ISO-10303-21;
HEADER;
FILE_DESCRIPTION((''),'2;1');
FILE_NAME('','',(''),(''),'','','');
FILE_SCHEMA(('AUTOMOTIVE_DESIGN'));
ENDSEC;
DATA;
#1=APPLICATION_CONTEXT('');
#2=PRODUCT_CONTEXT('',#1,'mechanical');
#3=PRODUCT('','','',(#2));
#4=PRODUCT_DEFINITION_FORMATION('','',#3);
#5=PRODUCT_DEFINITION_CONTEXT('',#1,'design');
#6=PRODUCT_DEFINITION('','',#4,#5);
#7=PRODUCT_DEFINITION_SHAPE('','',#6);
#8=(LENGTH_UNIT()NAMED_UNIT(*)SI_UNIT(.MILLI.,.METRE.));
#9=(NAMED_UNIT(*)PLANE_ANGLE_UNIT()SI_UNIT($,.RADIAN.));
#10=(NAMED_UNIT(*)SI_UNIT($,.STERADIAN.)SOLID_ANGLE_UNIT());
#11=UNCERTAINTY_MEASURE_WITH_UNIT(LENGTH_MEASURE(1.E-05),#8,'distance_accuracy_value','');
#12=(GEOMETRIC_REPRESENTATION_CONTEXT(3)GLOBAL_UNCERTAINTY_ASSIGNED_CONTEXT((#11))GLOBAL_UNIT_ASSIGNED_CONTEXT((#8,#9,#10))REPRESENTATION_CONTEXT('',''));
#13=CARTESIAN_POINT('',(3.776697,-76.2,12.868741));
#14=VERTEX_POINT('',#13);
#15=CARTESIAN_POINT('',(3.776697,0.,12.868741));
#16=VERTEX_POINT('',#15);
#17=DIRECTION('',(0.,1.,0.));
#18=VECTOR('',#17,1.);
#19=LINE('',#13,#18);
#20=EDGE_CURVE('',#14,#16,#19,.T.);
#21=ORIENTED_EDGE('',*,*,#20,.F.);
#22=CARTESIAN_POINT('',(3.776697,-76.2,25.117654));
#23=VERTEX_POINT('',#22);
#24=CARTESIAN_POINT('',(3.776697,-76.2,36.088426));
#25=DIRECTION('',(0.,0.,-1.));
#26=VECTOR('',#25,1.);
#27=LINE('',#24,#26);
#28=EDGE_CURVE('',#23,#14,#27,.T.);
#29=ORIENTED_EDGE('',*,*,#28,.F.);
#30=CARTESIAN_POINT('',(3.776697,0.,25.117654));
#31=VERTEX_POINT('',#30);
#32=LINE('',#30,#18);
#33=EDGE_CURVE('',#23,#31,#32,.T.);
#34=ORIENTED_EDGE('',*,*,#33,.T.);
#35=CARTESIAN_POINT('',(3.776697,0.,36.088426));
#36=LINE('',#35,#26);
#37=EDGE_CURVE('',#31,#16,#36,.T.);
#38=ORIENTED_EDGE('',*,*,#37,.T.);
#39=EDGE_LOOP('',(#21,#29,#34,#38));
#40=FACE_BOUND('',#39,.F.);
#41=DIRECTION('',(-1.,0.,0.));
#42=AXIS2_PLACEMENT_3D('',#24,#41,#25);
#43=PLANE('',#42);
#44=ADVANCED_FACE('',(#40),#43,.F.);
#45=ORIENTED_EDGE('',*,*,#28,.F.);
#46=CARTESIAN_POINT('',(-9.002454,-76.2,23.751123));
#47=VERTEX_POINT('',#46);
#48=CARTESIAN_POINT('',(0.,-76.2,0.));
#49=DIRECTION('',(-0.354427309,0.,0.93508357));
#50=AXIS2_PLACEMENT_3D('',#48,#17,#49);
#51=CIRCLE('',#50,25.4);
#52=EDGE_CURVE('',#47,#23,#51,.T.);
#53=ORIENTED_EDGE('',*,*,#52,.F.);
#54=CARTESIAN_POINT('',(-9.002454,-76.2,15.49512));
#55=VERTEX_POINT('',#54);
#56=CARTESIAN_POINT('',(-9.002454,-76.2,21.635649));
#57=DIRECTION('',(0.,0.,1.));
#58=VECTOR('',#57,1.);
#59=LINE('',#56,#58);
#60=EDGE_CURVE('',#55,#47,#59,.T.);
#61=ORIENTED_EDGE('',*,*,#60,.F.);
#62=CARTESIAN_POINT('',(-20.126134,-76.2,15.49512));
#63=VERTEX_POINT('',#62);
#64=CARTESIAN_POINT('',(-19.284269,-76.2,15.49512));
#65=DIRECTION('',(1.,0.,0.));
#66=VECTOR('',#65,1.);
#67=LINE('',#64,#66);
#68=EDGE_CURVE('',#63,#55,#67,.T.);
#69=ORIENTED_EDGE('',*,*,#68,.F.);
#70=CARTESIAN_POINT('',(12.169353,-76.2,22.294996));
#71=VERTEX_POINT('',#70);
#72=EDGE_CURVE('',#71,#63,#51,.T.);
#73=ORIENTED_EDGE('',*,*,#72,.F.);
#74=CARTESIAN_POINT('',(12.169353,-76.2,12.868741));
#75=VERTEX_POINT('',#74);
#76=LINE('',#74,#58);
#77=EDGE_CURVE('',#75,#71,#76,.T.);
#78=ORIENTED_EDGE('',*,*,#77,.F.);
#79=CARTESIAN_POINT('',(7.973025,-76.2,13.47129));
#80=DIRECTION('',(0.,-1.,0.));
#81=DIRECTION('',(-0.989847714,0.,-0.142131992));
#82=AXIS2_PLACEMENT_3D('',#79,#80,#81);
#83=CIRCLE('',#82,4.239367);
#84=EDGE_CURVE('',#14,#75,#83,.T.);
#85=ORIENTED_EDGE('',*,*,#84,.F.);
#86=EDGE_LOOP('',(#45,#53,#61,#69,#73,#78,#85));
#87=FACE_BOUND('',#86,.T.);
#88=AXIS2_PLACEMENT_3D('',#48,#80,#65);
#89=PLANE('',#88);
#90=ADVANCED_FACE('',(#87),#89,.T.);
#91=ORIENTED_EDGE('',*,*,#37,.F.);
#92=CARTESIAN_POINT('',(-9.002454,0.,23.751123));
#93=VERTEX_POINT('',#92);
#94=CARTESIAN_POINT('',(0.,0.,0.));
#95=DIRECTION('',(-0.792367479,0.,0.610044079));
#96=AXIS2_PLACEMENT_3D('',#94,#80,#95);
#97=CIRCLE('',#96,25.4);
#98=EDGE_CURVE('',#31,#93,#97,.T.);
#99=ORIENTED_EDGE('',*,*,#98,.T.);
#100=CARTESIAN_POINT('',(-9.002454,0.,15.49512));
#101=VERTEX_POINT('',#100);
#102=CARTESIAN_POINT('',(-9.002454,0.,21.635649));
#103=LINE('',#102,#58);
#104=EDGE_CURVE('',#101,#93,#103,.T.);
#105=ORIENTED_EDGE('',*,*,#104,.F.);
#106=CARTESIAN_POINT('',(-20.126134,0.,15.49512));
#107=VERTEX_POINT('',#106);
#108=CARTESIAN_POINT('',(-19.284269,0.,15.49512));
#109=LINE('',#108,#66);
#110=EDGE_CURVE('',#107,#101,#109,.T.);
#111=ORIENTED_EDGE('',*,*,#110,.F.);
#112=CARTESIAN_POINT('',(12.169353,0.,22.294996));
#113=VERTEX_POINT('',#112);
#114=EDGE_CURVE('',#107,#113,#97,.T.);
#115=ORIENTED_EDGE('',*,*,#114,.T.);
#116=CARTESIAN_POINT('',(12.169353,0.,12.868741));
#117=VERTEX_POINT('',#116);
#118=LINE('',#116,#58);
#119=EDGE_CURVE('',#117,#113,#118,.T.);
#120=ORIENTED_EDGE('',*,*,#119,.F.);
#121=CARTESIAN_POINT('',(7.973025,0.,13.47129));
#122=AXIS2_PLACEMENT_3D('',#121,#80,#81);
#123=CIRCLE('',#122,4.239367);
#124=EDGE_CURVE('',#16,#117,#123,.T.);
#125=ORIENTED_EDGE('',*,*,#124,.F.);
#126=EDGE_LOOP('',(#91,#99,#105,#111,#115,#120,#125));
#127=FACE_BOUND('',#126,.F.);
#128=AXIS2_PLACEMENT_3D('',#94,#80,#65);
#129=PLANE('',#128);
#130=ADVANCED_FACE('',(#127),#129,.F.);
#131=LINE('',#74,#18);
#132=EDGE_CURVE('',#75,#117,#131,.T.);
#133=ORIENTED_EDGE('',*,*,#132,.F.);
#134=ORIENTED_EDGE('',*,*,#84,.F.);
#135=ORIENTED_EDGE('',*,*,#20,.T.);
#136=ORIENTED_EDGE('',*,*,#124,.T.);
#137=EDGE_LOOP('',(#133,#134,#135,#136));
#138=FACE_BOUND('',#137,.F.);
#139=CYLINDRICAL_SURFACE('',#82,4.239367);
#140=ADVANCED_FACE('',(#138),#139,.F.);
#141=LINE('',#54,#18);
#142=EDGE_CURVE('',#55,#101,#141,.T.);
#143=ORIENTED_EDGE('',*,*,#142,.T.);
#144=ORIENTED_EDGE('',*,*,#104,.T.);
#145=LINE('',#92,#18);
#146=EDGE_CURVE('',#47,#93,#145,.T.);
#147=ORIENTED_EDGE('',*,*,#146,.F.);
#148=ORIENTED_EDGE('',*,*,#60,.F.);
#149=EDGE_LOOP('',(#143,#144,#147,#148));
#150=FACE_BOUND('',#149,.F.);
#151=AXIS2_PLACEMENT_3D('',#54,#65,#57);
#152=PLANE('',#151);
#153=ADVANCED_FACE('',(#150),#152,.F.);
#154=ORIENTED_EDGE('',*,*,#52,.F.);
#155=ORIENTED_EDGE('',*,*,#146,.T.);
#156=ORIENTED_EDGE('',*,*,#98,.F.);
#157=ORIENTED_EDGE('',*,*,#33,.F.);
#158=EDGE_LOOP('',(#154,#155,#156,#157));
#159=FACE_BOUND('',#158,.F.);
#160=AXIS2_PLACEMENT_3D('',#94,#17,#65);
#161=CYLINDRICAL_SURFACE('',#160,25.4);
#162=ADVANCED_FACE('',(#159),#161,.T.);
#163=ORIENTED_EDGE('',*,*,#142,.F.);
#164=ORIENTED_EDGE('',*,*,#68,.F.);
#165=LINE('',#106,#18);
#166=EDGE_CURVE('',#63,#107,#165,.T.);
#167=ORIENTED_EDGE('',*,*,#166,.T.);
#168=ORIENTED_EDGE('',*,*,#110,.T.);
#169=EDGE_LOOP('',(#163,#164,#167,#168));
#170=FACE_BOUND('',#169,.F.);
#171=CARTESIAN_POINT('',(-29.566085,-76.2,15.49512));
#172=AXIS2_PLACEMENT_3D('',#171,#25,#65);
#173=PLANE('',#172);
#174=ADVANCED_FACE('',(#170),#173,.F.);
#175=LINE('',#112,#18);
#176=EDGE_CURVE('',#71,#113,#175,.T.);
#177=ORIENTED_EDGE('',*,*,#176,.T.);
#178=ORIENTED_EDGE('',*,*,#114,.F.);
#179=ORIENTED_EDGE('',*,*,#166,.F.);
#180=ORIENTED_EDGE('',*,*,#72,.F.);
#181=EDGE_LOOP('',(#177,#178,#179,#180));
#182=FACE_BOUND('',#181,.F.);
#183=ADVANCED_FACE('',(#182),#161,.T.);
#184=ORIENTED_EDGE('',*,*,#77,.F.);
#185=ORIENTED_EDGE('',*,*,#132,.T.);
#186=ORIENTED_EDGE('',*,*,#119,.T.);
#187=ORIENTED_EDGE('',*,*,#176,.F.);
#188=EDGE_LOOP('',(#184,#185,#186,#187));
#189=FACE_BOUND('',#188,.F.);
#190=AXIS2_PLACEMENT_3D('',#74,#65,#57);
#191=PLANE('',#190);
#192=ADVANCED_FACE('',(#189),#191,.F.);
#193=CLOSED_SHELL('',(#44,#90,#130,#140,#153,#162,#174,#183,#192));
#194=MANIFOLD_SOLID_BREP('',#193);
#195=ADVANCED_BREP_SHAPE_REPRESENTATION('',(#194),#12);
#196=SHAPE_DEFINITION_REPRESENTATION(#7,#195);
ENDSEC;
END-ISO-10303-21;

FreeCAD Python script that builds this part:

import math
import FreeCAD as App
import Part
import Sketcher
Q = App.Units.Quantity


def add_polygon(sketch, points):
    """Adds a closed chain of lines whose ends are joined by coincident constraints."""
    first, n = sketch.GeometryCount, len(points)
    for a, b in zip(points, points[1:] + points[:1]):
        sketch.addGeometry(Part.LineSegment(App.Vector(*a, 0), App.Vector(*b, 0)), False)
    for i in range(n):
        sketch.addConstraint(Sketcher.Constraint("Coincident", first + i, 2, first + (i + 1) % n, 1))

doc = App.newDocument("Part")
params = doc.addObject("Spreadsheet::Sheet", "Params")
for row, (alias, value) in enumerate([
    ("sketch1_diameter", "2 in"),
    ("pad1_length", "3 in"),
    ("pocket1_length", "3 in"),
    ("pocket2_length", "3 in"),
], start=1):
    params.set(f"A{row}", alias)
    params.set(f"B{row}", "=" + value)
    params.setAlias(f"B{row}", alias)

body = doc.addObject("PartDesign::Body", "Body")

# Sketch on XZ plane
sketch1 = body.newObject("Sketcher::SketchObject", "Sketch")
sketch1.AttachmentSupport = (doc.getObject("XZ_Plane"), [""])
sketch1.MapMode = "FlatFace"
sketch1.addGeometry(Part.Circle(App.Vector(0, 0, 0), App.Vector(0, 0, 1), 25.4), False)
sketch1.addConstraint([
    Sketcher.Constraint("Coincident", 0, 3, -1, 1),
    Sketcher.Constraint("Diameter", 0, Q("2 in")),
])
sketch1.setExpression("Constraints[1]", "Params.sketch1_diameter")
pad1 = body.newObject("PartDesign::Pad", "Pad")
pad1.Profile = sketch1
pad1.setExpression("Length", "Params.pad1_length")

# Sketch on XZ plane
sketch2 = body.newObject("Sketcher::SketchObject", "Sketch001")
sketch2.AttachmentSupport = (doc.getObject("XZ_Plane"), [""])
sketch2.MapMode = "FlatFace"
sketch2.AttachmentOffset = App.Placement(App.Vector(0, 0, 3 * 25.4), App.Rotation())
add_polygon(sketch2, [(-29.566085, 27.776178), (-29.566085, 15.49512), (-9.002454, 15.49512), (-9.002454, 27.776178)])  # lines 0-3
sketch2.addConstraint([
    Sketcher.Constraint("Vertical", 0),
    Sketcher.Constraint("Horizontal", 1),
    Sketcher.Constraint("Vertical", 2),
    Sketcher.Constraint("Horizontal", 3),
    Sketcher.Constraint("DistanceX", 1, 1, 1, 2, 20.563631),
    Sketcher.Constraint("DistanceY", 0, 2, 0, 1, 12.281058),
    Sketcher.Constraint("DistanceY", -1, 1, 0, 2, 15.49512),
    Sketcher.Constraint("DistanceX", 0, 2, -1, 1, 29.566085),
])
pocket1 = body.newObject("PartDesign::Pocket", "Pocket")
pocket1.Profile = sketch2
pocket1.setExpression("Length", "Params.pocket1_length")

# Sketch on XZ plane
sketch3 = body.newObject("Sketcher::SketchObject", "Sketch002")
sketch3.AttachmentSupport = (doc.getObject("XZ_Plane"), [""])
sketch3.MapMode = "FlatFace"
sketch3.AttachmentOffset = App.Placement(App.Vector(0, 0, 3 * 25.4), App.Rotation())
sketch3.addGeometry([
    Part.ArcOfCircle(Part.Circle(App.Vector(7.973025, 13.47129, 0), App.Vector(0, 0, 1), 4.239367), math.radians(-171.828766), math.radians(-8.171234)),
    Part.LineSegment(App.Vector(12.169353, 12.868741, 0), App.Vector(12.169353, 36.088426, 0)),
    Part.LineSegment(App.Vector(12.169353, 36.088426, 0), App.Vector(3.776697, 36.088426, 0)),
    Part.LineSegment(App.Vector(3.776697, 36.088426, 0), App.Vector(3.776697, 12.868741, 0)),
], False)
sketch3.addConstraint([
    Sketcher.Constraint("Coincident", 0, 2, 1, 1),
    Sketcher.Constraint("Coincident", 1, 2, 2, 1),
    Sketcher.Constraint("Coincident", 2, 2, 3, 1),
    Sketcher.Constraint("Coincident", 3, 2, 0, 1),
    Sketcher.Constraint("Vertical", 1),
    Sketcher.Constraint("Horizontal", 2),
    Sketcher.Constraint("Vertical", 3),
    Sketcher.Constraint("Horizontal", 0, 2, 3, 2),
    Sketcher.Constraint("Radius", 0, 4.239367),
    Sketcher.Constraint("DistanceX", 2, 2, 2, 1, 8.392656),
    Sketcher.Constraint("DistanceY", 1, 1, 1, 2, 23.219685),
    Sketcher.Constraint("DistanceY", -1, 1, 0, 3, 13.47129),
    Sketcher.Constraint("DistanceX", -1, 1, 0, 3, 7.973025),
])
pocket2 = body.newObject("PartDesign::Pocket", "Pocket001")
pocket2.Profile = sketch3
pocket2.setExpression("Length", "Params.pocket2_length")

doc.recompute()
